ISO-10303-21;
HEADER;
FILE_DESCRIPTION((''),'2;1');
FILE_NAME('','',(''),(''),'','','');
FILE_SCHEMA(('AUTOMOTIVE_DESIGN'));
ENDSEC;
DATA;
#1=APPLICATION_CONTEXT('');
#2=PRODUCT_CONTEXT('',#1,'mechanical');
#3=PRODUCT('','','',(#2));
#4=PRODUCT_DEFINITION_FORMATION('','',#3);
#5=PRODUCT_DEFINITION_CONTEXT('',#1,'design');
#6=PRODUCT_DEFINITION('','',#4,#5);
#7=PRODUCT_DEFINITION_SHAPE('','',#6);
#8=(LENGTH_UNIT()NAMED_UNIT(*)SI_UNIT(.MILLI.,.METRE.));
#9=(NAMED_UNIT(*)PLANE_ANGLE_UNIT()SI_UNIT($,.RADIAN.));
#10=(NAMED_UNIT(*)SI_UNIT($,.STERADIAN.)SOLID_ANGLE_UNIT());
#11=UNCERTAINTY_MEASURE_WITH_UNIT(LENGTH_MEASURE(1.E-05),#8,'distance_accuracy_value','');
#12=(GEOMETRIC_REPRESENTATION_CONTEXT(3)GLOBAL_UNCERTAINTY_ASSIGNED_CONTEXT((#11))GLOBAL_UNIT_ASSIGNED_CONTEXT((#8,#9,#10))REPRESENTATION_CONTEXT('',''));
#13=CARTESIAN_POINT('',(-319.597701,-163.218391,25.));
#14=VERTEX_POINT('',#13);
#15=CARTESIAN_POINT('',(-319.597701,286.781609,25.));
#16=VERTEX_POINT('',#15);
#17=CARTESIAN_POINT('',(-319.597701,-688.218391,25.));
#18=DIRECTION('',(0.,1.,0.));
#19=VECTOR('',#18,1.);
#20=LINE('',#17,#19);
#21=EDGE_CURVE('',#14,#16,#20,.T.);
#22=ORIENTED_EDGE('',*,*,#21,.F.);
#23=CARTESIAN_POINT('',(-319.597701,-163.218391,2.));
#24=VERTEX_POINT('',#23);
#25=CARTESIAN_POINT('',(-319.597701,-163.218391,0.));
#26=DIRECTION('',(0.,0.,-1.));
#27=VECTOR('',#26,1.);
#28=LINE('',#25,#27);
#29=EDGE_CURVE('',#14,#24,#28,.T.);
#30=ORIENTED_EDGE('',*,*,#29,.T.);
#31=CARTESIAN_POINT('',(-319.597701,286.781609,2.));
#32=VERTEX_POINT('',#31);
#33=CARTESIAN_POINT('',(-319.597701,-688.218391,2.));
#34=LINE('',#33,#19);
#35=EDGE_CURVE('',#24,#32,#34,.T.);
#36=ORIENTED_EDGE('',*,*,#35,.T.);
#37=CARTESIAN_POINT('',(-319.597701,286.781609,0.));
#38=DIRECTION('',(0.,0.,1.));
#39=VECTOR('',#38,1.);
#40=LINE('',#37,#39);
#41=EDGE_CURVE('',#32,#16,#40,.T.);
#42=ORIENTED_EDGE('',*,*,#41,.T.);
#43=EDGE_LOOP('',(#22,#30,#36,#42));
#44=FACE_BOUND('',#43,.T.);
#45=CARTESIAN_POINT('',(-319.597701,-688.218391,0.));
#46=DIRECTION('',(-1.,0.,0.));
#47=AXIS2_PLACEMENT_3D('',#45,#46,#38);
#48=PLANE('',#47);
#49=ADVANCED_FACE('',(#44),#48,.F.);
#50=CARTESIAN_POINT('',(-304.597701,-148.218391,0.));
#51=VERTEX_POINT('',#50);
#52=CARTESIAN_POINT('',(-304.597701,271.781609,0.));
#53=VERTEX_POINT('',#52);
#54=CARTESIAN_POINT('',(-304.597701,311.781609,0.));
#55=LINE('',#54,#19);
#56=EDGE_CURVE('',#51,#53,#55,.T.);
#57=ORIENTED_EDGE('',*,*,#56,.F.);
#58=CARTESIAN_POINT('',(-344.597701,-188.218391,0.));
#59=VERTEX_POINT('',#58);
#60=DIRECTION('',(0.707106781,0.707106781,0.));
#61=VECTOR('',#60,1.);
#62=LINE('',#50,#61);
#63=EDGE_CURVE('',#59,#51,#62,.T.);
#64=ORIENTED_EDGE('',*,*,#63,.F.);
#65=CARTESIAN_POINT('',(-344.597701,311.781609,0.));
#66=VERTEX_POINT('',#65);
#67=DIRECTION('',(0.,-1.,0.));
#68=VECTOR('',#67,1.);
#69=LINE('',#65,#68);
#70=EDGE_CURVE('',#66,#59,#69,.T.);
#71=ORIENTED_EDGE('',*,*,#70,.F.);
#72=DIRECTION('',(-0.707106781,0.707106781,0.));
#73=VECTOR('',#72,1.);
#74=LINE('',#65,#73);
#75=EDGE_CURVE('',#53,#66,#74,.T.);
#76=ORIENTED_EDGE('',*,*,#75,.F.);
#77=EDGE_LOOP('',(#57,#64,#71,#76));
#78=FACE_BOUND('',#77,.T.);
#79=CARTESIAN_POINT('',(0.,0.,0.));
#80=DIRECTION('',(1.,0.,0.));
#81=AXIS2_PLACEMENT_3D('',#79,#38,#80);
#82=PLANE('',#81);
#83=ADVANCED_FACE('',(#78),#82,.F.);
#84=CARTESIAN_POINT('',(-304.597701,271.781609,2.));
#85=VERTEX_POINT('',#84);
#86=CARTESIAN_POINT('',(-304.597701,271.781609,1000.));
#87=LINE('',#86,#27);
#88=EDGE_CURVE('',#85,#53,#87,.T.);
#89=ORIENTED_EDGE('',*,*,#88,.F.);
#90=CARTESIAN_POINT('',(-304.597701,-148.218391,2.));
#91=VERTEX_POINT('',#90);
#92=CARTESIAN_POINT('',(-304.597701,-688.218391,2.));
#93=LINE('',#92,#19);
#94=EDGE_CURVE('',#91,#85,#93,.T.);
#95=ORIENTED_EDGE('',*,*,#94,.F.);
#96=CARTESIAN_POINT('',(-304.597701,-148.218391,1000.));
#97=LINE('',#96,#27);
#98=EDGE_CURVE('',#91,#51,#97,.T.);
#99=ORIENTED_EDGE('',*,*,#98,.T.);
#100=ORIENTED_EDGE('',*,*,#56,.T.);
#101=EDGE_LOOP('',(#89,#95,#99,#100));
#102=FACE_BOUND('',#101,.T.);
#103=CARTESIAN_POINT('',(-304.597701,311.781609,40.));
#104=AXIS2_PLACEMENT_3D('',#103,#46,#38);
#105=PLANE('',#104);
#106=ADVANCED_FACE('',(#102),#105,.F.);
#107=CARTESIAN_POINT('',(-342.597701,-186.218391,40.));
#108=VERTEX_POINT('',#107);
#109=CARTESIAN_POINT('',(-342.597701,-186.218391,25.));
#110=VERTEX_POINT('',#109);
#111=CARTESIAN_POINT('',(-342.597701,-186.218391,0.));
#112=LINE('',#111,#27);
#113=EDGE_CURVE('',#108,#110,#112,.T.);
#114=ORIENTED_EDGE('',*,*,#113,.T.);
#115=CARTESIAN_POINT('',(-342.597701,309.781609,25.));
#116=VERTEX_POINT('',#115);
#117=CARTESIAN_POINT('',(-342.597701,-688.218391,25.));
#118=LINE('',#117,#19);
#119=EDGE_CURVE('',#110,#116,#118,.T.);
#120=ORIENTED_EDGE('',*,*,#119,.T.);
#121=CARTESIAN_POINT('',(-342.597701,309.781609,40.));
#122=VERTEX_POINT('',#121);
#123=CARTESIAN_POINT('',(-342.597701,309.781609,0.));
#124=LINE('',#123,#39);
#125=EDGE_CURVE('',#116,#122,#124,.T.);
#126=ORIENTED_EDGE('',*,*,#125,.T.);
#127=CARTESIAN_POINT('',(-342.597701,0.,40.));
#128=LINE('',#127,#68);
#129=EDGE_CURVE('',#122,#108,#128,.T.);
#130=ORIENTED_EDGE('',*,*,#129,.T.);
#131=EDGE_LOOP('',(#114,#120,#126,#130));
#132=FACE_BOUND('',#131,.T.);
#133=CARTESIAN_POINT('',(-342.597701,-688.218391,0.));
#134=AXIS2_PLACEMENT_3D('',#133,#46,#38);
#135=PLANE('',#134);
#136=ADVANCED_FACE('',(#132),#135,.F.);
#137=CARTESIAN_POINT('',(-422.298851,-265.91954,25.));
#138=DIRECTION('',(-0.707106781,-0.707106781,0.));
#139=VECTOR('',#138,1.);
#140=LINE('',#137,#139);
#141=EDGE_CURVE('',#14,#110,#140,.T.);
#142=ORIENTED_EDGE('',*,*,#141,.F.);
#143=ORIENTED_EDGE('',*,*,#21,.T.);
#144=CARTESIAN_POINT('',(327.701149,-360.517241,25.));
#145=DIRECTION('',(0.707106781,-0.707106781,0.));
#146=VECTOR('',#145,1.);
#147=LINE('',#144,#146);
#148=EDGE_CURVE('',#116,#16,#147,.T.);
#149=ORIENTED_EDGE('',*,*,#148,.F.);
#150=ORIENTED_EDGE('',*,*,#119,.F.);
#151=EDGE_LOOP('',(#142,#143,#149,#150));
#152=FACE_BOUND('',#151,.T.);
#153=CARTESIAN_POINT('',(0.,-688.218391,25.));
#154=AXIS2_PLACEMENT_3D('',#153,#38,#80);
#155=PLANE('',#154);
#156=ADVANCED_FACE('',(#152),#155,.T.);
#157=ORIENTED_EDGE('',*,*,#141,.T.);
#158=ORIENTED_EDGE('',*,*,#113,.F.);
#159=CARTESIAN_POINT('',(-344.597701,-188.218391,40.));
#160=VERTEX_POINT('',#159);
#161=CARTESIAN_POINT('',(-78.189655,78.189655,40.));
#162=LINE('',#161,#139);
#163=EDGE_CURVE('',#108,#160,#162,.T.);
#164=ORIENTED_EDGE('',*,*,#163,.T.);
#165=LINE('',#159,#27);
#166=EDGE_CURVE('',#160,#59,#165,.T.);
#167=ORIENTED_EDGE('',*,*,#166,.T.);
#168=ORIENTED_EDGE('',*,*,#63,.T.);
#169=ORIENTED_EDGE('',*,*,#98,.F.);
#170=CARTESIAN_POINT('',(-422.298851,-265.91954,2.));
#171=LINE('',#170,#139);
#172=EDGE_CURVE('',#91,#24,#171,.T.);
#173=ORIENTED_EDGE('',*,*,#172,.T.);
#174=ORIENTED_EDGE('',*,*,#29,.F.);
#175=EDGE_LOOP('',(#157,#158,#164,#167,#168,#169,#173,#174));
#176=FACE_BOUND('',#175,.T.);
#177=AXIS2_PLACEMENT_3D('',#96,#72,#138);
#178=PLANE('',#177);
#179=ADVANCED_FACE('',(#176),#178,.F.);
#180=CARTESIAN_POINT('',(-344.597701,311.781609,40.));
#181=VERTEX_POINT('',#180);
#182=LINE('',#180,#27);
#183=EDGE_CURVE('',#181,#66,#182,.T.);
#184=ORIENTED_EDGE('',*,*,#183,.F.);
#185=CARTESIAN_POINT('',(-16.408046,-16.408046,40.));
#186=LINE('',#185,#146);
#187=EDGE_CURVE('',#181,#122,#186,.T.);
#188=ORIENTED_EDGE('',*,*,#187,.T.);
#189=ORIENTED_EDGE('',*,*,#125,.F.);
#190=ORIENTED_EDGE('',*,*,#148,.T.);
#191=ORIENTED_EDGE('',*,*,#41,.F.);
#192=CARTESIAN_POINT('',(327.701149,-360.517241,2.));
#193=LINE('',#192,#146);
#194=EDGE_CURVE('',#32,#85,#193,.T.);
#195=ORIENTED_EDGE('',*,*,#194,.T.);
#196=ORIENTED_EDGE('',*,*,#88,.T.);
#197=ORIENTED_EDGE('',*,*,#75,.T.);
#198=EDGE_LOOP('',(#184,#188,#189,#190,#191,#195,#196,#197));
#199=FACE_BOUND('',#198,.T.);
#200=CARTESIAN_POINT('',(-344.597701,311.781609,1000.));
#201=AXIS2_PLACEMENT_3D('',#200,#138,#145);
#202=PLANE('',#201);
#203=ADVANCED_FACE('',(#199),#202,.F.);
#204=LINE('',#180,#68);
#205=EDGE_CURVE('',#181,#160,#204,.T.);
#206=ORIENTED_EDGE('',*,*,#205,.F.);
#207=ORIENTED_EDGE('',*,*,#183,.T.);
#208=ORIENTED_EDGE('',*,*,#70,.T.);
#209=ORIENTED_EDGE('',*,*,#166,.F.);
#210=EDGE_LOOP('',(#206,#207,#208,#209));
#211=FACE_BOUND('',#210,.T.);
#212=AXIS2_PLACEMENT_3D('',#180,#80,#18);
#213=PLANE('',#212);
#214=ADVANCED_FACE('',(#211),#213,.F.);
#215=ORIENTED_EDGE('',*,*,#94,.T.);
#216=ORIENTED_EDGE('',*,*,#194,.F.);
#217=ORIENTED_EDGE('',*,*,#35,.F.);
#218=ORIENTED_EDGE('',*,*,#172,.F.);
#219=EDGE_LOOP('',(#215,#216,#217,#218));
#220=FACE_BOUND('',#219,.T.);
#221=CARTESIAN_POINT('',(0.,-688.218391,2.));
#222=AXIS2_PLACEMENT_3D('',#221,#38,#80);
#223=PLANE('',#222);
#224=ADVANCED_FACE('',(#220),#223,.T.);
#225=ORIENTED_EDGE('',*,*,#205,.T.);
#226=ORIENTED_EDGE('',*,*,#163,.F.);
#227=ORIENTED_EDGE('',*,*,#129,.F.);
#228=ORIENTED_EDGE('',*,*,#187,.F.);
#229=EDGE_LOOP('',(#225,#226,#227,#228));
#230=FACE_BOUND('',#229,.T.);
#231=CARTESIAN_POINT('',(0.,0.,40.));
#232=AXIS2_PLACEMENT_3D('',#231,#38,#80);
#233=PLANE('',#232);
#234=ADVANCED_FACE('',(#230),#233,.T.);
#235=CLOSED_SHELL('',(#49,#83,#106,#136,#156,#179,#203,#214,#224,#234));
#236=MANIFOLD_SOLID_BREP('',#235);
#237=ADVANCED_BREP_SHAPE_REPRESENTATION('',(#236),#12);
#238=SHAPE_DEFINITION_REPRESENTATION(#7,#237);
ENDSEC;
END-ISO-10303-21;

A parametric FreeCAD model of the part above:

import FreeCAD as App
import Part
import Sketcher

doc = App.newDocument("Part")
body = doc.addObject("PartDesign::Body", "Body")

sketch1 = doc.addObject("Sketcher::SketchObject", "Sketch")
body.addObject(sketch1)
sketch1.AttachmentSupport = (doc.XY_Plane, [""])
sketch1.MapMode = "FlatFace"
sketch1.addGeometry([
    Part.LineSegment(App.Vector(-344.597701, 311.781609, 0), App.Vector(-344.597701, -188.218391, 0)),
    Part.LineSegment(App.Vector(-344.597701, -188.218391, 0), App.Vector(-304.597701, -188.218391, 0)),
    Part.LineSegment(App.Vector(-304.597701, -188.218391, 0), App.Vector(-304.597701, 311.781609, 0)),
    Part.LineSegment(App.Vector(-304.597701, 311.781609, 0), App.Vector(-344.597701, 311.781609, 0)),
], False)
sketch1.addConstraint([
    Sketcher.Constraint("Coincident", 0, 2, 1, 1),
    Sketcher.Constraint("Coincident", 1, 2, 2, 1),
    Sketcher.Constraint("Coincident", 2, 2, 3, 1),
    Sketcher.Constraint("Coincident", 3, 2, 0, 1),
    Sketcher.Constraint("Vertical", 0),
    Sketcher.Constraint("Horizontal", 1),
    Sketcher.Constraint("Vertical", 2),
    Sketcher.Constraint("Horizontal", 3),
    Sketcher.Constraint("DistanceX", 1, 1, 1, 2, 40.0),
    Sketcher.Constraint("DistanceY", 0, 2, 0, 1, 500.0),
    Sketcher.Constraint("DistanceX", 0, 2, -1, 1, 344.597701),
    Sketcher.Constraint("DistanceY", 0, 2, -1, 1, 188.218391),
])
pad1 = doc.addObject("PartDesign::Pad", "Pad")
body.addObject(pad1)
pad1.Profile = sketch1
pad1.Length = 40

sketch2 = doc.addObject("Sketcher::SketchObject", "Sketch001")
body.addObject(sketch2)
sketch2.AttachmentSupport = (doc.XZ_Plane, [""])
sketch2.MapMode = "FlatFace"
sketch2.AttachmentOffset = App.Placement(App.Vector(0, 0, -311.781609), App.Rotation())
sketch2.addGeometry([
    Part.LineSegment(App.Vector(-319.597701, 2, 0), App.Vector(-319.597701, 25, 0)),
    Part.LineSegment(App.Vector(-319.597701, 25, 0), App.Vector(-342.597701, 25, 0)),
    Part.LineSegment(App.Vector(-342.597701, 25, 0), App.Vector(-342.597701, 40, 0)),
    Part.LineSegment(App.Vector(-342.597701, 40, 0), App.Vector(-304.597701, 40, 0)),
    Part.LineSegment(App.Vector(-304.597701, 40, 0), App.Vector(-304.597701, 2, 0)),
    Part.LineSegment(App.Vector(-304.597701, 2, 0), App.Vector(-319.597701, 2, 0)),
], False)
sketch2.addConstraint([
    Sketcher.Constraint("Coincident", 0, 2, 1, 1),
    Sketcher.Constraint("Coincident", 1, 2, 2, 1),
    Sketcher.Constraint("Coincident", 2, 2, 3, 1),
    Sketcher.Constraint("Coincident", 3, 2, 4, 1),
    Sketcher.Constraint("Coincident", 4, 2, 5, 1),
    Sketcher.Constraint("Coincident", 5, 2, 0, 1),
    Sketcher.Constraint("Vertical", 0),
    Sketcher.Constraint("Horizontal", 1),
    Sketcher.Constraint("Vertical", 2),
    Sketcher.Constraint("Horizontal", 3),
    Sketcher.Constraint("Vertical", 4),
    Sketcher.Constraint("Horizontal", 5),
    Sketcher.Constraint("Equal", 1, 0),
    Sketcher.Constraint("Equal", 5, 2),
    Sketcher.Constraint("DistanceX", 1, 2, 1, 1, 23.0),
    Sketcher.Constraint("DistanceX", 3, 1, 3, 2, 38.0),
    Sketcher.Constraint("DistanceY", -1, 1, 0, 2, 25.0),
    Sketcher.Constraint("DistanceX", 0, 2, -1, 1, 319.597701),
])
pocket1 = doc.addObject("PartDesign::Pocket", "Pocket")
body.addObject(pocket1)
pocket1.Profile = sketch2
pocket1.Length = 1000
pocket1.Reversed = True

sketch3 = doc.addObject("Sketcher::SketchObject", "Sketch002")
body.addObject(sketch3)
sketch3.AttachmentSupport = (doc.XY_Plane, [""])
sketch3.MapMode = "FlatFace"
sketch3.addGeometry([
    Part.LineSegment(App.Vector(-344.597701, 311.781609, 0), App.Vector(-304.597701, 311.781609, 0)),
    Part.LineSegment(App.Vector(-304.597701, 311.781609, 0), App.Vector(-304.597701, 271.781609, 0)),
    Part.LineSegment(App.Vector(-304.597701, 271.781609, 0), App.Vector(-344.597701, 311.781609, 0)),
    Part.LineSegment(App.Vector(-304.597701, -188.218391, 0), App.Vector(-344.597701, -188.218391, 0)),
    Part.LineSegment(App.Vector(-344.597701, -188.218391, 0), App.Vector(-304.597701, -148.218391, 0)),
    Part.LineSegment(App.Vector(-304.597701, -148.218391, 0), App.Vector(-304.597701, -188.218391, 0)),
], False)
sketch3.addConstraint([
    Sketcher.Constraint("Coincident", 0, 2, 1, 1),
    Sketcher.Constraint("Coincident", 1, 2, 2, 1),
    Sketcher.Constraint("Coincident", 2, 2, 0, 1),
    Sketcher.Constraint("Coincident", 3, 2, 4, 1),
    Sketcher.Constraint("Coincident", 4, 2, 5, 1),
    Sketcher.Constraint("Coincident", 5, 2, 3, 1),
    Sketcher.Constraint("Horizontal", 0),
    Sketcher.Constraint("Vertical", 1),
    Sketcher.Constraint("Horizontal", 3),
    Sketcher.Constraint("Vertical", 5),
    Sketcher.Constraint("Perpendicular", 2, 4),
    Sketcher.Constraint("Vertical", 2, 2, 3, 2),
    Sketcher.Constraint("Vertical", 1, 2, 4, 2),
    Sketcher.Constraint("Equal", 3, 1),
    Sketcher.Constraint("DistanceX", 0, 1, 0, 2, 40.0),
    Sketcher.Constraint("DistanceY", 3, 2, 1, 2, 460.0),
    Sketcher.Constraint("DistanceX", 0, 2, -1, 1, 304.597701),
    Sketcher.Constraint("DistanceY", -1, 1, 0, 2, 311.781609),
])
pocket2 = doc.addObject("PartDesign::Pocket", "Pocket001")
body.addObject(pocket2)
pocket2.Profile = sketch3
pocket2.Length = 1000
pocket2.Reversed = True

doc.recompute()
